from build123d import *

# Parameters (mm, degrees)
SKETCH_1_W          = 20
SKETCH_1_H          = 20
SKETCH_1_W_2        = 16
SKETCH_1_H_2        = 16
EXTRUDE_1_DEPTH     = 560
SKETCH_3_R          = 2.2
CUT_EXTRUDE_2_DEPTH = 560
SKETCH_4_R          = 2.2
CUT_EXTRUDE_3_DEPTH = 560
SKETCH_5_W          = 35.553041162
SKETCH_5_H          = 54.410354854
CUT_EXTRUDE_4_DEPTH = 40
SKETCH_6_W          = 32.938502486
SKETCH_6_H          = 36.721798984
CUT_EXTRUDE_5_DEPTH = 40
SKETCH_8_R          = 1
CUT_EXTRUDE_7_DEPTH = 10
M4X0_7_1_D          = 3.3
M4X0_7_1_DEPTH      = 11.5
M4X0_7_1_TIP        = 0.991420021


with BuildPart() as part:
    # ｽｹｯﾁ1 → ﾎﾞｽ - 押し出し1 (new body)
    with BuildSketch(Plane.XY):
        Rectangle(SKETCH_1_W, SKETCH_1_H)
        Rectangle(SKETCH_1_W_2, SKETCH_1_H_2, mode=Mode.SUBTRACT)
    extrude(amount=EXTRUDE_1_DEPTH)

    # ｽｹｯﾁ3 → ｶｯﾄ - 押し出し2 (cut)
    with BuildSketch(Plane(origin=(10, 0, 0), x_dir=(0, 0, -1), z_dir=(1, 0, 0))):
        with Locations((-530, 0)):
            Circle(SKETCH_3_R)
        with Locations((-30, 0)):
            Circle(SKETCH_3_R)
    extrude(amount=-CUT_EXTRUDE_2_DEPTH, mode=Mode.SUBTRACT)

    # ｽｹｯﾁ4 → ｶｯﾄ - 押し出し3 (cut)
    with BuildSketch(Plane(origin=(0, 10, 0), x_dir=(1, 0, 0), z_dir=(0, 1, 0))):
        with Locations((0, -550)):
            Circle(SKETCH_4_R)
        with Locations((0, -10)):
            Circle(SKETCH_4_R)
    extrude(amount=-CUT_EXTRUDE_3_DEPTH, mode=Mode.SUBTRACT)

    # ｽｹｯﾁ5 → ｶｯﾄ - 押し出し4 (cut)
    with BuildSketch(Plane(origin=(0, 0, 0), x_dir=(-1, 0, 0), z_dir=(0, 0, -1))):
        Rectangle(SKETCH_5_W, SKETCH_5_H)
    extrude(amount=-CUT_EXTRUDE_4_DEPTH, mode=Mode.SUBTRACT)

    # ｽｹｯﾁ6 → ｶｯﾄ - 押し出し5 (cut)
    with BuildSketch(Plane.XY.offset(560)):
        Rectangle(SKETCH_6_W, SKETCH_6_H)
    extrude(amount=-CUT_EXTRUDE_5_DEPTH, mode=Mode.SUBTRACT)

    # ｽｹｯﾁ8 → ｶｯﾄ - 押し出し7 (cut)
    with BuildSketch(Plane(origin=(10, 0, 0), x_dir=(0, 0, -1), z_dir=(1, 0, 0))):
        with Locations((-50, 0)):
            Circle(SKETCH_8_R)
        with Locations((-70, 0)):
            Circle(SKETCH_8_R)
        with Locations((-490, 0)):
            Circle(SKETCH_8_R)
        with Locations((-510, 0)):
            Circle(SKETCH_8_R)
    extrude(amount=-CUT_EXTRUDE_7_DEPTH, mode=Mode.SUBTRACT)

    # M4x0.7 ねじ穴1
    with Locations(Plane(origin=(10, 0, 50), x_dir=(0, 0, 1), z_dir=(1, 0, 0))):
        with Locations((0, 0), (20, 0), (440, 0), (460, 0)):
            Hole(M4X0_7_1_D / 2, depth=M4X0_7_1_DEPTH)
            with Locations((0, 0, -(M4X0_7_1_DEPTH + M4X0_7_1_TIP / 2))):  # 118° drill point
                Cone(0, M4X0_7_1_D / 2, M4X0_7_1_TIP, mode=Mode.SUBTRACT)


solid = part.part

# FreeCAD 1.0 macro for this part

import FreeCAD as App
import Part
import Sketcher

doc = App.newDocument("Part")
body = doc.addObject("PartDesign::Body", "Body")

sketch1 = body.newObject("Sketcher::SketchObject", "Sketch")
sketch1.AttachmentSupport = (doc.getObject("XY_Plane"), [""])
sketch1.MapMode = "FlatFace"
sketch1.addGeometry(Part.LineSegment(App.Vector(-10, 10, 0), App.Vector(-10, -10, 0)), False)
sketch1.addGeometry(Part.LineSegment(App.Vector(-10, -10, 0), App.Vector(10, -10, 0)), False)
sketch1.addGeometry(Part.LineSegment(App.Vector(10, -10, 0), App.Vector(10, 10, 0)), False)
sketch1.addGeometry(Part.LineSegment(App.Vector(10, 10, 0), App.Vector(-10, 10, 0)), False)
sketch1.addGeometry(Part.LineSegment(App.Vector(8, -8, 0), App.Vector(-8, -8, 0)), False)
sketch1.addGeometry(Part.LineSegment(App.Vector(-8, -8, 0), App.Vector(-8, 8, 0)), False)
sketch1.addGeometry(Part.LineSegment(App.Vector(-8, 8, 0), App.Vector(8, 8, 0)), False)
sketch1.addGeometry(Part.LineSegment(App.Vector(8, 8, 0), App.Vector(8, -8, 0)), False)
sketch1.addConstraint(Sketcher.Constraint("Coincident", 0, 2, 1, 1))
sketch1.addConstraint(Sketcher.Constraint("Coincident", 1, 2, 2, 1))
sketch1.addConstraint(Sketcher.Constraint("Coincident", 2, 2, 3, 1))
sketch1.addConstraint(Sketcher.Constraint("Coincident", 3, 2, 0, 1))
sketch1.addConstraint(Sketcher.Constraint("Coincident", 4, 2, 5, 1))
sketch1.addConstraint(Sketcher.Constraint("Coincident", 5, 2, 6, 1))
sketch1.addConstraint(Sketcher.Constraint("Coincident", 6, 2, 7, 1))
sketch1.addConstraint(Sketcher.Constraint("Coincident", 7, 2, 4, 1))
sketch1.addConstraint(Sketcher.Constraint("Vertical", 0))
sketch1.addConstraint(Sketcher.Constraint("Horizontal", 1))
sketch1.addConstraint(Sketcher.Constraint("Vertical", 2))
sketch1.addConstraint(Sketcher.Constraint("Horizontal", 3))
sketch1.addConstraint(Sketcher.Constraint("Horizontal", 4))
sketch1.addConstraint(Sketcher.Constraint("Vertical", 5))
sketch1.addConstraint(Sketcher.Constraint("Horizontal", 6))
sketch1.addConstraint(Sketcher.Constraint("Vertical", 7))
sketch1.addConstraint(Sketcher.Constraint("Symmetric", 0, 2, 2, 2, -1, 1))
sketch1.addConstraint(Sketcher.Constraint("Symmetric", 4, 2, 6, 2, -1, 1))
sketch1.addConstraint(Sketcher.Constraint("Equal", 3, 0))
sketch1.addConstraint(Sketcher.Constraint("Equal", 6, 5))
sketch1.addConstraint(Sketcher.Constraint("DistanceX", 1, 1, 1, 2, 20.0))
sketch1.addConstraint(Sketcher.Constraint("DistanceX", 4, 2, 4, 1, 16.0))
pad1 = body.newObject("PartDesign::Pad", "Pad")
pad1.Profile = sketch1
pad1.Length = 560

sketch2 = body.newObject("Sketcher::SketchObject", "Sketch001")
sketch2.AttachmentSupport = (doc.getObject("YZ_Plane"), [""])
sketch2.MapMode = "FlatFace"
sketch2.AttachmentOffset = App.Placement(App.Vector(0, 0, 10), App.Rotation())
sketch2.addGeometry(Part.Circle(App.Vector(0, 530, 0), App.Vector(0, 0, 1), 2.2), False)
sketch2.addGeometry(Part.Circle(App.Vector(0, 30, 0), App.Vector(0, 0, 1), 2.2), False)
sketch2.addConstraint(Sketcher.Constraint("Equal", 0, 1))
sketch2.addConstraint(Sketcher.Constraint("PointOnObject", 0, 3, -2))
sketch2.addConstraint(Sketcher.Constraint("PointOnObject", 1, 3, -2))
sketch2.addConstraint(Sketcher.Constraint("Diameter", 0, 4.4))
sketch2.addConstraint(Sketcher.Constraint("DistanceY", -1, 1, 0, 3, 530.0))
sketch2.addConstraint(Sketcher.Constraint("DistanceY", -1, 1, 1, 3, 30.0))
pocket1 = body.newObject("PartDesign::Pocket", "Pocket")
pocket1.Profile = sketch2
pocket1.Length = 560

sketch3 = body.newObject("Sketcher::SketchObject", "Sketch002")
sketch3.AttachmentSupport = (doc.getObject("XZ_Plane"), [""])
sketch3.MapMode = "FlatFace"
sketch3.AttachmentOffset = App.Placement(App.Vector(0, 0, -10), App.Rotation())
sketch3.addGeometry(Part.Circle(App.Vector(0, 550, 0), App.Vector(0, 0, 1), 2.2), False)
sketch3.addGeometry(Part.Circle(App.Vector(0, 10, 0), App.Vector(0, 0, 1), 2.2), False)
sketch3.addConstraint(Sketcher.Constraint("Equal", 0, 1))
sketch3.addConstraint(Sketcher.Constraint("PointOnObject", 0, 3, -2))
sketch3.addConstraint(Sketcher.Constraint("PointOnObject", 1, 3, -2))
sketch3.addConstraint(Sketcher.Constraint("Diameter", 0, 4.4))
sketch3.addConstraint(Sketcher.Constraint("DistanceY", -1, 1, 0, 3, 550.0))
sketch3.addConstraint(Sketcher.Constraint("DistanceY", -1, 1, 1, 3, 10.0))
pocket2 = body.newObject("PartDesign::Pocket", "Pocket001")
pocket2.Profile = sketch3
pocket2.Length = 560
pocket2.Reversed = True

sketch4 = body.newObject("Sketcher::SketchObject", "Sketch003")
sketch4.AttachmentSupport = (doc.getObject("XY_Plane"), [""])
sketch4.MapMode = "FlatFace"
sketch4.addGeometry(Part.LineSegment(App.Vector(17.776521, 27.205177, 0), App.Vector(17.776521, -27.205177, 0)), False)
sketch4.addGeometry(Part.LineSegment(App.Vector(17.776521, -27.205177, 0), App.Vector(-17.776521, -27.205177, 0)), False)
sketch4.addGeometry(Part.LineSegment(App.Vector(-17.776521, -27.205177, 0), App.Vector(-17.776521, 27.205177, 0)), False)
sketch4.addGeometry(Part.LineSegment(App.Vector(-17.776521, 27.205177, 0), App.Vector(17.776521, 27.205177, 0)), False)
sketch4.addConstraint(Sketcher.Constraint("Coincident", 0, 2, 1, 1))
sketch4.addConstraint(Sketcher.Constraint("Coincident", 1, 2, 2, 1))
sketch4.addConstraint(Sketcher.Constraint("Coincident", 2, 2, 3, 1))
sketch4.addConstraint(Sketcher.Constraint("Coincident", 3, 2, 0, 1))
sketch4.addConstraint(Sketcher.Constraint("Vertical", 0))
sketch4.addConstraint(Sketcher.Constraint("Horizontal", 1))
sketch4.addConstraint(Sketcher.Constraint("Vertical", 2))
sketch4.addConstraint(Sketcher.Constraint("Horizontal", 3))
sketch4.addConstraint(Sketcher.Constraint("Symmetric", 0, 2, 2, 2, -1, 1))
sketch4.addConstraint(Sketcher.Constraint("DistanceX", 1, 2, 1, 1, 35.553041))
sketch4.addConstraint(Sketcher.Constraint("DistanceY", 0, 2, 0, 1, 54.410355))
pocket3 = body.newObject("PartDesign::Pocket", "Pocket002")
pocket3.Profile = sketch4
pocket3.Length = 40
pocket3.Reversed = True

sketch5 = body.newObject("Sketcher::SketchObject", "Sketch004")
sketch5.AttachmentSupport = (doc.getObject("XY_Plane"), [""])
sketch5.MapMode = "FlatFace"
sketch5.AttachmentOffset = App.Placement(App.Vector(0, 0, 560), App.Rotation())
sketch5.addGeometry(Part.LineSegment(App.Vector(-16.469251, 18.360899, 0), App.Vector(-16.469251, -18.360899, 0)), False)
sketch5.addGeometry(Part.LineSegment(App.Vector(-16.469251, -18.360899, 0), App.Vector(16.469251, -18.360899, 0)), False)
sketch5.addGeometry(Part.LineSegment(App.Vector(16.469251, -18.360899, 0), App.Vector(16.469251, 18.360899, 0)), False)
sketch5.addGeometry(Part.LineSegment(App.Vector(16.469251, 18.360899, 0), App.Vector(-16.469251, 18.360899, 0)), False)
sketch5.addConstraint(Sketcher.Constraint("Coincident", 0, 2, 1, 1))
sketch5.addConstraint(Sketcher.Constraint("Coincident", 1, 2, 2, 1))
sketch5.addConstraint(Sketcher.Constraint("Coincident", 2, 2, 3, 1))
sketch5.addConstraint(Sketcher.Constraint("Coincident", 3, 2, 0, 1))
sketch5.addConstraint(Sketcher.Constraint("Vertical", 0))
sketch5.addConstraint(Sketcher.Constraint("Horizontal", 1))
sketch5.addConstraint(Sketcher.Constraint("Vertical", 2))
sketch5.addConstraint(Sketcher.Constraint("Horizontal", 3))
sketch5.addConstraint(Sketcher.Constraint("Symmetric", 0, 2, 2, 2, -1, 1))
sketch5.addConstraint(Sketcher.Constraint("DistanceY", 0, 2, 0, 1, 36.721799))
sketch5.addConstraint(Sketcher.Constraint("DistanceX", 1, 1, 1, 2, 32.938502))
pocket4 = body.newObject("PartDesign::Pocket", "Pocket003")
pocket4.Profile = sketch5
pocket4.Length = 40

sketch6 = body.newObject("Sketcher::SketchObject", "Sketch005")
sketch6.AttachmentSupport = (doc.getObject("YZ_Plane"), [""])
sketch6.MapMode = "FlatFace"
sketch6.AttachmentOffset = App.Placement(App.Vector(0, 0, 10), App.Rotation())
sketch6.addGeometry(Part.Circle(App.Vector(0, 50, 0), App.Vector(0, 0, 1), 1), False)
sketch6.addGeometry(Part.Circle(App.Vector(0, 70, 0), App.Vector(0, 0, 1), 1), False)
sketch6.addGeometry(Part.Circle(App.Vector(0, 490, 0), App.Vector(0, 0, 1), 1), False)
sketch6.addGeometry(Part.Circle(App.Vector(0, 510, 0), App.Vector(0, 0, 1), 1), False)
sketch6.addConstraint(Sketcher.Constraint("Equal", 0, 1))
sketch6.addConstraint(Sketcher.Constraint("Equal", 1, 2))
sketch6.addConstraint(Sketcher.Constraint("Equal", 2, 3))
sketch6.addConstraint(Sketcher.Constraint("PointOnObject", 0, 3, -2))
sketch6.addConstraint(Sketcher.Constraint("PointOnObject", 1, 3, -2))
sketch6.addConstraint(Sketcher.Constraint("PointOnObject", 2, 3, -2))
sketch6.addConstraint(Sketcher.Constraint("PointOnObject", 3, 3, -2))
sketch6.addConstraint(Sketcher.Constraint("Diameter", 0, 2.0))
sketch6.addConstraint(Sketcher.Constraint("DistanceY", -1, 1, 0, 3, 50.0))
sketch6.addConstraint(Sketcher.Constraint("DistanceY", -1, 1, 1, 3, 70.0))
sketch6.addConstraint(Sketcher.Constraint("DistanceY", -1, 1, 2, 3, 490.0))
sketch6.addConstraint(Sketcher.Constraint("DistanceY", -1, 1, 3, 3, 510.0))
pocket5 = body.newObject("PartDesign::Pocket", "Pocket004")
pocket5.Profile = sketch6
pocket5.Length = 10

sketch7 = body.newObject("Sketcher::SketchObject", "Sketch006")
sketch7.AttachmentSupport = (doc.getObject("YZ_Plane"), [""])
sketch7.MapMode = "FlatFace"
sketch7.AttachmentOffset = App.Placement(App.Vector(0, 0, 10), App.Rotation())
sketch7.addGeometry(Part.Circle(App.Vector(0, 50, 0), App.Vector(0, 0, 1), 1.65), False)
sketch7.addGeometry(Part.Circle(App.Vector(0, 70, 0), App.Vector(0, 0, 1), 1.65), False)
sketch7.addGeometry(Part.Circle(App.Vector(0, 490, 0), App.Vector(0, 0, 1), 1.65), False)
sketch7.addGeometry(Part.Circle(App.Vector(0, 510, 0), App.Vector(0, 0, 1), 1.65), False)
sketch7.addConstraint(Sketcher.Constraint("Equal", 0, 1))
sketch7.addConstraint(Sketcher.Constraint("Equal", 1, 2))
sketch7.addConstraint(Sketcher.Constraint("Equal", 2, 3))
sketch7.addConstraint(Sketcher.Constraint("PointOnObject", 0, 3, -2))
sketch7.addConstraint(Sketcher.Constraint("PointOnObject", 1, 3, -2))
sketch7.addConstraint(Sketcher.Constraint("PointOnObject", 2, 3, -2))
sketch7.addConstraint(Sketcher.Constraint("PointOnObject", 3, 3, -2))
sketch7.addConstraint(Sketcher.Constraint("Diameter", 0, 3.3))
sketch7.addConstraint(Sketcher.Constraint("DistanceY", -1, 1, 0, 3, 50.0))
sketch7.addConstraint(Sketcher.Constraint("DistanceY", -1, 1, 1, 3, 70.0))
sketch7.addConstraint(Sketcher.Constraint("DistanceY", -1, 1, 2, 3, 490.0))
sketch7.addConstraint(Sketcher.Constraint("DistanceY", -1, 1, 3, 3, 510.0))
doc.recompute()
hole = body.newObject("PartDesign::Hole", "Hole")
hole.Profile = sketch7
hole.ThreadType = "None"
hole.Diameter = 3.3
hole.DepthType = "Dimension"
hole.Depth = 11.5
hole.DrillPoint = "Angled"
hole.DrillPointAngle = 118

doc.recompute()
